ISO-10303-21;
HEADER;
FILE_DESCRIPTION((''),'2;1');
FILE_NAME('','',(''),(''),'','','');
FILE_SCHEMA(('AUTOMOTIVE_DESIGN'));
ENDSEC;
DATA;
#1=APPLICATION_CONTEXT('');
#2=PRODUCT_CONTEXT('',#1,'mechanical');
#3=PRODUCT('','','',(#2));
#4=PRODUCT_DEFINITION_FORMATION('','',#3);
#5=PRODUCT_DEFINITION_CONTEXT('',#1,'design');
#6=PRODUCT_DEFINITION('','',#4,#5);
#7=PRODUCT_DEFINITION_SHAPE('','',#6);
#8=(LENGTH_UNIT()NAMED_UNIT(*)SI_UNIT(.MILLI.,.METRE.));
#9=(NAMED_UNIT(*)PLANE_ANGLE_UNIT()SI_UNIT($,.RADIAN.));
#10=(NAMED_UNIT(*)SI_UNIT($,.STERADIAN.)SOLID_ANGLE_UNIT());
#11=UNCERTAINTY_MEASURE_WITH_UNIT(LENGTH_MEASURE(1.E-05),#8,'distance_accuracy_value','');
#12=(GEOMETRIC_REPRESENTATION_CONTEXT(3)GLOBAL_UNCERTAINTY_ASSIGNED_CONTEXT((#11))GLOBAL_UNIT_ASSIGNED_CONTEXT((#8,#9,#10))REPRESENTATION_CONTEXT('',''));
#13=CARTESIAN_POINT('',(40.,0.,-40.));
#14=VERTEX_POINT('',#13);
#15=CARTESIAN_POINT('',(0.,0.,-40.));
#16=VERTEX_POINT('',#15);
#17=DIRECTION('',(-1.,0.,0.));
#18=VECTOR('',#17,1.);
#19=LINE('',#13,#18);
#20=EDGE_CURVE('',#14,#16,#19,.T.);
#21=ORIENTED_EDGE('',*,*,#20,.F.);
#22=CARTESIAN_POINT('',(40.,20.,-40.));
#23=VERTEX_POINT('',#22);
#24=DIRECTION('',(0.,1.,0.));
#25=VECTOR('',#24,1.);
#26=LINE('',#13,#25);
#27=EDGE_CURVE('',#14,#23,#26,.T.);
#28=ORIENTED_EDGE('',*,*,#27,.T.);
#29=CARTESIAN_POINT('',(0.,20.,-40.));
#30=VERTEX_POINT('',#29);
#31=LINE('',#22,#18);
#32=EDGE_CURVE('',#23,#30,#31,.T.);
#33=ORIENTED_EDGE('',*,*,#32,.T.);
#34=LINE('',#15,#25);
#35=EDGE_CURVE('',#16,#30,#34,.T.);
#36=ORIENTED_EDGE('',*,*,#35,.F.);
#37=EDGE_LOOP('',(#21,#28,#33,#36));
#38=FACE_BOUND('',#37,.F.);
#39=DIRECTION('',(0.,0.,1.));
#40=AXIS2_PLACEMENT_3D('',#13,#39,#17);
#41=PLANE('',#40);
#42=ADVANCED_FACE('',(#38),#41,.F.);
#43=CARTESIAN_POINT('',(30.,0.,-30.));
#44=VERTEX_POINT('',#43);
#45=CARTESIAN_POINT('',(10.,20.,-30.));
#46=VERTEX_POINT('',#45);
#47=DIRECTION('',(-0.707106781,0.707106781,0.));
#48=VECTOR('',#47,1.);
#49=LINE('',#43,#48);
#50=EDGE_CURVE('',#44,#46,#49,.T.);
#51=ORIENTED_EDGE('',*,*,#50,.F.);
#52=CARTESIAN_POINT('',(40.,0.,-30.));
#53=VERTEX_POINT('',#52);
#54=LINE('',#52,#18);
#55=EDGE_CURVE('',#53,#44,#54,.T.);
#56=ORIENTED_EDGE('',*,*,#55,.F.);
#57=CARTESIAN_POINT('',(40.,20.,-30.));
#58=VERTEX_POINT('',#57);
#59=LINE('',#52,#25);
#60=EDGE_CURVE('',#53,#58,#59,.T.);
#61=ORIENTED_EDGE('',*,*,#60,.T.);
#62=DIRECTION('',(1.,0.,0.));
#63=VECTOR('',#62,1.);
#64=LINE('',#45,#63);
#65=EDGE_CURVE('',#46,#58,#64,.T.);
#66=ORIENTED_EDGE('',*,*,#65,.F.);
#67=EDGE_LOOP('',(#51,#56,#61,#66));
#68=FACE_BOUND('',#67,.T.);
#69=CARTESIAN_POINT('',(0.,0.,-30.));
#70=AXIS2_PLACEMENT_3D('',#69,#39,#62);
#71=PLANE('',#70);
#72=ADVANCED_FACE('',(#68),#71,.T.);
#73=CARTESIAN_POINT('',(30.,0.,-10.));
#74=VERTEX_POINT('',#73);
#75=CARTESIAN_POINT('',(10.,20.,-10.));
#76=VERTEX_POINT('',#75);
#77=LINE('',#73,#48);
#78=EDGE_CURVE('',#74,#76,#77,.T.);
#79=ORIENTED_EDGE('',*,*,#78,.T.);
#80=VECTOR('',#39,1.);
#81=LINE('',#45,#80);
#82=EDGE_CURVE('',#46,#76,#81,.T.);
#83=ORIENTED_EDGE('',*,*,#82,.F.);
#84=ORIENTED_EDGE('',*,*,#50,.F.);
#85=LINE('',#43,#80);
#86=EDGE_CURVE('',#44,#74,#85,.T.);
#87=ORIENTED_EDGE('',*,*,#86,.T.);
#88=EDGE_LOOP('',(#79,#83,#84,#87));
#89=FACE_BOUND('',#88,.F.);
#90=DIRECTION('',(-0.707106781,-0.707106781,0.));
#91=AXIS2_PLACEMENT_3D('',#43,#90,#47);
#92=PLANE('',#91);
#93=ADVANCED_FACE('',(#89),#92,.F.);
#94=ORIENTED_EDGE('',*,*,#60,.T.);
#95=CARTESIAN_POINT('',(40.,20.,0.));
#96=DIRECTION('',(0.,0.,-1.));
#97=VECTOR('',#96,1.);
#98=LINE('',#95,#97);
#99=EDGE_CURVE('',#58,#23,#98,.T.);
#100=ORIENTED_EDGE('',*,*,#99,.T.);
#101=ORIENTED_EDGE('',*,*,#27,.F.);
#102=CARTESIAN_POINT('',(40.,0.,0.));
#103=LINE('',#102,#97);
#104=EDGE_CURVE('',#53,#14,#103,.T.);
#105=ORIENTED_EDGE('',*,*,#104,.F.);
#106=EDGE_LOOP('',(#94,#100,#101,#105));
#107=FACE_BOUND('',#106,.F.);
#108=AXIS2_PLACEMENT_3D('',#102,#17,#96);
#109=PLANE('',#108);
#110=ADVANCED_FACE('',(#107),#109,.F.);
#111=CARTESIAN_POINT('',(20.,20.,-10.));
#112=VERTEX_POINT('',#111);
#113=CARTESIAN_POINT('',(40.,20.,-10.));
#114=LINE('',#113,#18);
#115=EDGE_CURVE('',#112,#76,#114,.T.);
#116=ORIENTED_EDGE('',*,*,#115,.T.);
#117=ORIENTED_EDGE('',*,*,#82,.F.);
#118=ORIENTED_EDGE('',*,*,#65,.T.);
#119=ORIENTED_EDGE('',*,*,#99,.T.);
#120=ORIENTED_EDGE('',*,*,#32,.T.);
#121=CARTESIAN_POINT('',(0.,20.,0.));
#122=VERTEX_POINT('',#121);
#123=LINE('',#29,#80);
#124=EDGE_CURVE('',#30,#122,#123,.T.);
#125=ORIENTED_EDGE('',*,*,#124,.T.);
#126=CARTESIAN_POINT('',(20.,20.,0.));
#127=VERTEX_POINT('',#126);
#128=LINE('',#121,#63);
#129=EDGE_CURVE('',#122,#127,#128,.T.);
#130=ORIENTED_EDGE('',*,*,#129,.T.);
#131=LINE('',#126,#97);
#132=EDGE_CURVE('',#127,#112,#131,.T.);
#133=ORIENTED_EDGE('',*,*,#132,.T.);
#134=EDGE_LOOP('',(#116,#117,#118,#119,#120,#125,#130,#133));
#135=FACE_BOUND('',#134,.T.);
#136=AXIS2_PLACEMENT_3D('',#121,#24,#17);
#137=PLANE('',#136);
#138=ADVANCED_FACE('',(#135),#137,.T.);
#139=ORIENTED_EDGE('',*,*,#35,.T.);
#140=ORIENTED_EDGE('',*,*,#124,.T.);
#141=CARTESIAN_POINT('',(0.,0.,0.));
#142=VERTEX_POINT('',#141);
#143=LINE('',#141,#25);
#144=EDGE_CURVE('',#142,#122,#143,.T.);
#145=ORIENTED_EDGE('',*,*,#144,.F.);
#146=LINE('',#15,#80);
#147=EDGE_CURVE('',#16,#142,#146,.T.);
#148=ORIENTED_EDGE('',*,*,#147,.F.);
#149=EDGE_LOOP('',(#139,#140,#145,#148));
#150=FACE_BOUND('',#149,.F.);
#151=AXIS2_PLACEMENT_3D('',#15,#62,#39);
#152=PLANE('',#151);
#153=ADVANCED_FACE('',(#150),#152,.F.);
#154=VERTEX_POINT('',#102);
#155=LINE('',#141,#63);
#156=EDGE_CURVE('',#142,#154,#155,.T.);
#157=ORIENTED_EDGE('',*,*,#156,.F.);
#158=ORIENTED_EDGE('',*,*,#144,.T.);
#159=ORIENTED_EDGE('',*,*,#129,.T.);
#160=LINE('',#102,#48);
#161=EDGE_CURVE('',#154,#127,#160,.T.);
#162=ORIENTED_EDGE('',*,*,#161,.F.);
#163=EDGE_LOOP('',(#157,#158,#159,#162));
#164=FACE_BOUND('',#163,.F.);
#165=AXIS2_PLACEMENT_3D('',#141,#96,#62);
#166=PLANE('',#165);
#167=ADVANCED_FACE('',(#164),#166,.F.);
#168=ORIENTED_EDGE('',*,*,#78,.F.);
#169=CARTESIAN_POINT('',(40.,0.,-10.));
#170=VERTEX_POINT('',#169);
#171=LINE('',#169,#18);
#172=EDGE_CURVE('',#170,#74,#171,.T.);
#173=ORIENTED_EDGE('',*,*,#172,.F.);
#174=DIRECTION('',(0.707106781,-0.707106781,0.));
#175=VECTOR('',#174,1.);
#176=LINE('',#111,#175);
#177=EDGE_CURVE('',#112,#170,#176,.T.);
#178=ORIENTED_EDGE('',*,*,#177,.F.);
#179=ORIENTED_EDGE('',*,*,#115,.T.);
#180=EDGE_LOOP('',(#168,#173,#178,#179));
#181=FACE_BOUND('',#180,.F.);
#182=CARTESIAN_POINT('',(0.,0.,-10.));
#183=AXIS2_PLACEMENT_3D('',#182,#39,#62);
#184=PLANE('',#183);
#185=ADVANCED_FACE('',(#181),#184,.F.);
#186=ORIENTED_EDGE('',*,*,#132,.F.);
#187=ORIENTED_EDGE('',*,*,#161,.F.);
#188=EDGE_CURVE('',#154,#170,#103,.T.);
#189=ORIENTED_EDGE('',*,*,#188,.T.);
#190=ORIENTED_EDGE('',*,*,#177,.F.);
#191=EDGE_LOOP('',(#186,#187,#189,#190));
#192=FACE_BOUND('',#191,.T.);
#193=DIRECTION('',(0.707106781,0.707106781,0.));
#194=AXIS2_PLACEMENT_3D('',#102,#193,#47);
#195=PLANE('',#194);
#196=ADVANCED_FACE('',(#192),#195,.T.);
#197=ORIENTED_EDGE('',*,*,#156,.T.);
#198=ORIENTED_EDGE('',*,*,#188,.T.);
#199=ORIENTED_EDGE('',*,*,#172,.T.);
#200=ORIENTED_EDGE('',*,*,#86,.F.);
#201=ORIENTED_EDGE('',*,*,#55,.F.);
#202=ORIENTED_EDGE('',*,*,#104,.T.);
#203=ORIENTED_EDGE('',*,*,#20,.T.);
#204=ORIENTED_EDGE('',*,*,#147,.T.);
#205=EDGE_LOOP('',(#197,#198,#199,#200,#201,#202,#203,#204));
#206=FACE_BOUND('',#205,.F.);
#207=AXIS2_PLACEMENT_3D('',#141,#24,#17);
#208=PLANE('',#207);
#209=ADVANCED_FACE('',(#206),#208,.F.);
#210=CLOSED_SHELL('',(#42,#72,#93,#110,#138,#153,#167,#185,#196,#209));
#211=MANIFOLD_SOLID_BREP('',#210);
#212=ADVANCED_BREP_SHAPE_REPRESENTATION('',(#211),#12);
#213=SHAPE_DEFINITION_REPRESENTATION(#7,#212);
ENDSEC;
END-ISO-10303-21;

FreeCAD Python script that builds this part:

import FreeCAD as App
import Part
import Sketcher

V = App.Vector
Q = App.Units.Quantity

doc = App.newDocument("Part")
params = doc.addObject("Spreadsheet::Sheet", "Params")
for row, (alias, value) in enumerate([
    ("sketch1_width", "40 mm"),
    ("pad1_length", "20 mm"),
    ("sketch2_width", "20 mm"),
    ("pocket1_length", "30 mm"),
    ("sketch3_width", "10 mm"),
    ("pocket2_length", "20 mm"),
], start=1):
    params.set(f"A{row}", alias)
    params.set(f"B{row}", "=" + value)
    params.setAlias(f"B{row}", alias)

body = doc.addObject("PartDesign::Body", "Body")

# Sketch on XZ plane
sketch1 = body.newObject("Sketcher::SketchObject", "Sketch")
sketch1.AttachmentSupport = (doc.getObject("XZ_Plane"), [""])
sketch1.MapMode = "FlatFace"
sketch1.addGeometry([
    Part.LineSegment(V(0, -40, 0), V(0, 0, 0)),
    Part.LineSegment(V(0, 0, 0), V(40, 0, 0)),
    Part.LineSegment(V(40, 0, 0), V(40, -40, 0)),
    Part.LineSegment(V(40, -40, 0), V(0, -40, 0)),
], False)
sketch1.addConstraint([
    Sketcher.Constraint("Coincident", 0, 2, 1, 1),
    Sketcher.Constraint("Coincident", 1, 2, 2, 1),
    Sketcher.Constraint("Coincident", 2, 2, 3, 1),
    Sketcher.Constraint("Coincident", 3, 2, 0, 1),
    Sketcher.Constraint("Vertical", 0),
    Sketcher.Constraint("Horizontal", 1),
    Sketcher.Constraint("Vertical", 2),
    Sketcher.Constraint("Horizontal", 3),
    Sketcher.Constraint("Coincident", 0, 2, -1, 1),
    Sketcher.Constraint("Equal", 3, 0),
    Sketcher.Constraint("DistanceX", 1, 1, 1, 2, Q("40 mm")),
])
sketch1.setExpression("Constraints[10]", "Params.sketch1_width")
pad1 = body.newObject("PartDesign::Pad", "Pad")
pad1.Profile = sketch1
pad1.setExpression("Length", "Params.pad1_length")
pad1.Reversed = True

# Sketch on XY plane
sketch2 = body.newObject("Sketcher::SketchObject", "Sketch001")
sketch2.AttachmentSupport = (doc.getObject("XY_Plane"), [""])
sketch2.MapMode = "FlatFace"
sketch2.addGeometry([
    Part.LineSegment(V(20, 20, 0), V(40, 0, 0)),
    Part.LineSegment(V(40, 0, 0), V(40, 20, 0)),
    Part.LineSegment(V(40, 20, 0), V(20, 20, 0)),
], False)
sketch2.addConstraint([
    Sketcher.Constraint("Coincident", 0, 2, 1, 1),
    Sketcher.Constraint("Coincident", 1, 2, 2, 1),
    Sketcher.Constraint("Coincident", 2, 2, 0, 1),
    Sketcher.Constraint("Vertical", 1),
    Sketcher.Constraint("Horizontal", 2),
    Sketcher.Constraint("PointOnObject", 0, 2, -1),
    Sketcher.Constraint("Equal", 2, 1),
    Sketcher.Constraint("DistanceX", 2, 2, 2, 1, Q("20 mm")),
    Sketcher.Constraint("DistanceX", -1, 1, 2, 2, Q("20 mm")),
])
sketch2.setExpression("Constraints[7]", "Params.sketch2_width")
pocket1 = body.newObject("PartDesign::Pocket", "Pocket")
pocket1.Profile = sketch2
pocket1.setExpression("Length", "Params.pocket1_length")

# Sketch on XY plane
sketch3 = body.newObject("Sketcher::SketchObject", "Sketch002")
sketch3.AttachmentSupport = (doc.getObject("XY_Plane"), [""])
sketch3.MapMode = "FlatFace"
sketch3.AttachmentOffset = App.Placement(V(0, 0, -30), App.Rotation())
sketch3.addGeometry([
    Part.LineSegment(V(30, 0, 0), V(40, 0, 0)),
    Part.LineSegment(V(40, 0, 0), V(20, 20, 0)),
    Part.LineSegment(V(20, 20, 0), V(10, 20, 0)),
    Part.LineSegment(V(10, 20, 0), V(30, 0, 0)),
], False)
sketch3.addConstraint([
    Sketcher.Constraint("Coincident", 0, 2, 1, 1),
    Sketcher.Constraint("Coincident", 1, 2, 2, 1),
    Sketcher.Constraint("Coincident", 2, 2, 3, 1),
    Sketcher.Constraint("Coincident", 3, 2, 0, 1),
    Sketcher.Constraint("Horizontal", 0),
    Sketcher.Constraint("Horizontal", 2),
    Sketcher.Constraint("PointOnObject", 0, 2, -1),
    Sketcher.Constraint("Parallel", 1, 3),
    Sketcher.Constraint("DistanceX", 0, 1, 0, 2, Q("10 mm")),
    Sketcher.Constraint("DistanceX", -1, 1, 1, 2, Q("20 mm")),
    Sketcher.Constraint("DistanceY", -1, 1, 1, 2, Q("20 mm")),
    Sketcher.Constraint("DistanceX", 1, 2, 0, 2, Q("20 mm")),
])
sketch3.setExpression("Constraints[8]", "Params.sketch3_width")
pocket2 = body.newObject("PartDesign::Pocket", "Pocket001")
pocket2.Profile = sketch3
pocket2.setExpression("Length", "Params.pocket2_length")
pocket2.Reversed = True

doc.recompute()
